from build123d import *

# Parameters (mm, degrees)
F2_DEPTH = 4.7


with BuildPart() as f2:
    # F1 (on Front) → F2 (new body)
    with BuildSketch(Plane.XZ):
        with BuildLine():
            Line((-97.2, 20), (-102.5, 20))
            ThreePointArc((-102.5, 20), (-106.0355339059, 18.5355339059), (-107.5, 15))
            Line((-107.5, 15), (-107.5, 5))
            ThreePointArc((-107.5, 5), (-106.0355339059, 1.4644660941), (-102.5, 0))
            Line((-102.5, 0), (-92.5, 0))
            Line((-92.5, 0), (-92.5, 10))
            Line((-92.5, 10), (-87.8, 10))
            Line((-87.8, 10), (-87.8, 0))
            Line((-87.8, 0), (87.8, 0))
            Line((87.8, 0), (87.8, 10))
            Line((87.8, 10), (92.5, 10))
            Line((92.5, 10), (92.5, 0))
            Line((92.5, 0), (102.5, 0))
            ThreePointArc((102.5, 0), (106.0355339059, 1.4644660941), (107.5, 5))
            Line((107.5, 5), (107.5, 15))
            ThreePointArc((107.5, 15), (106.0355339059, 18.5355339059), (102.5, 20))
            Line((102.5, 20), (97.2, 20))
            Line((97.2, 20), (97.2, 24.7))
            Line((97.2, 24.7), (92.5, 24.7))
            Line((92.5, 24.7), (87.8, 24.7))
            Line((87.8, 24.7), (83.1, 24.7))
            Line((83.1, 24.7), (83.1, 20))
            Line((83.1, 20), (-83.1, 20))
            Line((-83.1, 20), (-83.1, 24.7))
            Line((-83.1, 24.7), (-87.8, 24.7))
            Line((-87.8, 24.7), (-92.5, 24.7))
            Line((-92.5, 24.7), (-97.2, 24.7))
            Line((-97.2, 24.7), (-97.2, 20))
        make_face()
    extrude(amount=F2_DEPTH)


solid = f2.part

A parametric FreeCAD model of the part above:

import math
import FreeCAD as App
import Part
import Sketcher
Q = App.Units.Quantity

doc = App.newDocument("Part")
body = doc.addObject("PartDesign::Body", "Body")

# Sketch on XZ plane
sketch1 = doc.addObject("Sketcher::SketchObject", "Sketch")
body.addObject(sketch1)
sketch1.AttachmentSupport = (doc.XZ_Plane, [""])
sketch1.MapMode = "FlatFace"
sketch1.addGeometry(Part.LineSegment(App.Vector(-97.2, 20, 0), App.Vector(-102.5, 20, 0)), False)
sketch1.addGeometry(Part.ArcOfCircle(Part.Circle(App.Vector(-102.5, 15, 0), App.Vector(0, 0, 1), 5), math.radians(90), math.radians(180)), False)
sketch1.addGeometry(Part.LineSegment(App.Vector(-107.5, 15, 0), App.Vector(-107.5, 5, 0)), False)
sketch1.addGeometry(Part.ArcOfCircle(Part.Circle(App.Vector(-102.5, 5, 0), App.Vector(0, 0, 1), 5), math.radians(180), math.radians(270)), False)
sketch1.addGeometry(Part.LineSegment(App.Vector(-102.5, 0, 0), App.Vector(-92.5, 0, 0)), False)
sketch1.addGeometry(Part.LineSegment(App.Vector(-92.5, 0, 0), App.Vector(-92.5, 10, 0)), False)
sketch1.addGeometry(Part.LineSegment(App.Vector(-92.5, 10, 0), App.Vector(-87.8, 10, 0)), False)
sketch1.addGeometry(Part.LineSegment(App.Vector(-87.8, 10, 0), App.Vector(-87.8, 0, 0)), False)
sketch1.addGeometry(Part.LineSegment(App.Vector(-87.8, 0, 0), App.Vector(87.8, 0, 0)), False)
sketch1.addGeometry(Part.LineSegment(App.Vector(87.8, 0, 0), App.Vector(87.8, 10, 0)), False)
sketch1.addGeometry(Part.LineSegment(App.Vector(87.8, 10, 0), App.Vector(92.5, 10, 0)), False)
sketch1.addGeometry(Part.LineSegment(App.Vector(92.5, 10, 0), App.Vector(92.5, 0, 0)), False)
sketch1.addGeometry(Part.LineSegment(App.Vector(92.5, 0, 0), App.Vector(102.5, 0, 0)), False)
sketch1.addGeometry(Part.ArcOfCircle(Part.Circle(App.Vector(102.5, 5, 0), App.Vector(0, 0, 1), 5), math.radians(-90), math.radians(0)), False)
sketch1.addGeometry(Part.LineSegment(App.Vector(107.5, 5, 0), App.Vector(107.5, 15, 0)), False)
sketch1.addGeometry(Part.ArcOfCircle(Part.Circle(App.Vector(102.5, 15, 0), App.Vector(0, 0, 1), 5), math.radians(0), math.radians(90)), False)
sketch1.addGeometry(Part.LineSegment(App.Vector(102.5, 20, 0), App.Vector(97.2, 20, 0)), False)
sketch1.addGeometry(Part.LineSegment(App.Vector(97.2, 20, 0), App.Vector(97.2, 24.7, 0)), False)
sketch1.addGeometry(Part.LineSegment(App.Vector(97.2, 24.7, 0), App.Vector(83.1, 24.7, 0)), False)
sketch1.addGeometry(Part.LineSegment(App.Vector(83.1, 24.7, 0), App.Vector(83.1, 20, 0)), False)
sketch1.addGeometry(Part.LineSegment(App.Vector(83.1, 20, 0), App.Vector(-83.1, 20, 0)), False)
sketch1.addGeometry(Part.LineSegment(App.Vector(-83.1, 20, 0), App.Vector(-83.1, 24.7, 0)), False)
sketch1.addGeometry(Part.LineSegment(App.Vector(-83.1, 24.7, 0), App.Vector(-97.2, 24.7, 0)), False)
sketch1.addGeometry(Part.LineSegment(App.Vector(-97.2, 24.7, 0), App.Vector(-97.2, 20, 0)), False)
sketch1.addConstraint(Sketcher.Constraint("Tangent", 0, 2, 1, 1))
sketch1.addConstraint(Sketcher.Constraint("Tangent", 1, 2, 2, 1))
sketch1.addConstraint(Sketcher.Constraint("Tangent", 2, 2, 3, 1))
sketch1.addConstraint(Sketcher.Constraint("Tangent", 3, 2, 4, 1))
sketch1.addConstraint(Sketcher.Constraint("Coincident", 4, 2, 5, 1))
sketch1.addConstraint(Sketcher.Constraint("Coincident", 5, 2, 6, 1))
sketch1.addConstraint(Sketcher.Constraint("Coincident", 6, 2, 7, 1))
sketch1.addConstraint(Sketcher.Constraint("Coincident", 7, 2, 8, 1))
sketch1.addConstraint(Sketcher.Constraint("Coincident", 8, 2, 9, 1))
sketch1.addConstraint(Sketcher.Constraint("Coincident", 9, 2, 10, 1))
sketch1.addConstraint(Sketcher.Constraint("Coincident", 10, 2, 11, 1))
sketch1.addConstraint(Sketcher.Constraint("Coincident", 11, 2, 12, 1))
sketch1.addConstraint(Sketcher.Constraint("Tangent", 12, 2, 13, 1))
sketch1.addConstraint(Sketcher.Constraint("Tangent", 13, 2, 14, 1))
sketch1.addConstraint(Sketcher.Constraint("Tangent", 14, 2, 15, 1))
sketch1.addConstraint(Sketcher.Constraint("Tangent", 15, 2, 16, 1))
sketch1.addConstraint(Sketcher.Constraint("Coincident", 16, 2, 17, 1))
sketch1.addConstraint(Sketcher.Constraint("Coincident", 17, 2, 18, 1))
sketch1.addConstraint(Sketcher.Constraint("Coincident", 18, 2, 19, 1))
sketch1.addConstraint(Sketcher.Constraint("Coincident", 19, 2, 20, 1))
sketch1.addConstraint(Sketcher.Constraint("Coincident", 20, 2, 21, 1))
sketch1.addConstraint(Sketcher.Constraint("Coincident", 21, 2, 22, 1))
sketch1.addConstraint(Sketcher.Constraint("Coincident", 22, 2, 23, 1))
sketch1.addConstraint(Sketcher.Constraint("Coincident", 23, 2, 0, 1))
sketch1.addConstraint(Sketcher.Constraint("Horizontal", 0))
sketch1.addConstraint(Sketcher.Constraint("Vertical", 2))
sketch1.addConstraint(Sketcher.Constraint("Horizontal", 4))
sketch1.addConstraint(Sketcher.Constraint("Vertical", 5))
sketch1.addConstraint(Sketcher.Constraint("Horizontal", 6))
sketch1.addConstraint(Sketcher.Constraint("Vertical", 7))
sketch1.addConstraint(Sketcher.Constraint("Horizontal", 8))
sketch1.addConstraint(Sketcher.Constraint("Vertical", 9))
sketch1.addConstraint(Sketcher.Constraint("Horizontal", 10))
sketch1.addConstraint(Sketcher.Constraint("Vertical", 11))
sketch1.addConstraint(Sketcher.Constraint("Horizontal", 12))
sketch1.addConstraint(Sketcher.Constraint("Vertical", 14))
sketch1.addConstraint(Sketcher.Constraint("Horizontal", 16))
sketch1.addConstraint(Sketcher.Constraint("Vertical", 17))
sketch1.addConstraint(Sketcher.Constraint("Horizontal", 18))
sketch1.addConstraint(Sketcher.Constraint("Vertical", 19))
sketch1.addConstraint(Sketcher.Constraint("Horizontal", 20))
sketch1.addConstraint(Sketcher.Constraint("Vertical", 21))
sketch1.addConstraint(Sketcher.Constraint("Horizontal", 22))
sketch1.addConstraint(Sketcher.Constraint("Vertical", 23))
sketch1.addConstraint(Sketcher.Constraint("Equal", 1, 3))
sketch1.addConstraint(Sketcher.Constraint("Equal", 3, 13))
sketch1.addConstraint(Sketcher.Constraint("Equal", 13, 15))
sketch1.addConstraint(Sketcher.Constraint("Symmetric", 7, 2, 8, 2, -1, 1))
sketch1.addConstraint(Sketcher.Constraint("Symmetric", 4, 2, 11, 2, -1, 1))
sketch1.addConstraint(Sketcher.Constraint("Symmetric", 3, 3, 13, 3, -2))
sketch1.addConstraint(Sketcher.Constraint("Symmetric", 18, 2, 21, 2, -2))
sketch1.addConstraint(Sketcher.Constraint("Symmetric", 16, 2, 23, 2, -2))
sketch1.addConstraint(Sketcher.Constraint("Horizontal", 6, 2, 9, 2))
sketch1.addConstraint(Sketcher.Constraint("Horizontal", 16, 2, 19, 2))
sketch1.addConstraint(Sketcher.Constraint("Equal", 12, 2))
sketch1.addConstraint(Sketcher.Constraint("Equal", 2, 5))
sketch1.addConstraint(Sketcher.Constraint("Equal", 10, 17))
sketch1.addConstraint(Sketcher.Constraint("Radius", 1, Q("5 mm")))
sketch1.addConstraint(Sketcher.Constraint("DistanceX", 4, 1, 4, 2, Q("10 mm")))
sketch1.addConstraint(Sketcher.Constraint("DistanceX", 0, 2, 0, 1, Q("5.3 mm")))
sketch1.addConstraint(Sketcher.Constraint("DistanceX", 6, 1, 6, 2, Q("4.7 mm")))
sketch1.addConstraint(Sketcher.Constraint("DistanceX", 8, 1, 8, 2, Q("175.6 mm")))
sketch1.addConstraint(Sketcher.Constraint("DistanceX", 18, 2, 18, 1, Q("14.1 mm")))
pad1 = doc.addObject("PartDesign::Pad", "Pad")
body.addObject(pad1)
pad1.Profile = sketch1
pad1.Length = 4.7

doc.recompute()
